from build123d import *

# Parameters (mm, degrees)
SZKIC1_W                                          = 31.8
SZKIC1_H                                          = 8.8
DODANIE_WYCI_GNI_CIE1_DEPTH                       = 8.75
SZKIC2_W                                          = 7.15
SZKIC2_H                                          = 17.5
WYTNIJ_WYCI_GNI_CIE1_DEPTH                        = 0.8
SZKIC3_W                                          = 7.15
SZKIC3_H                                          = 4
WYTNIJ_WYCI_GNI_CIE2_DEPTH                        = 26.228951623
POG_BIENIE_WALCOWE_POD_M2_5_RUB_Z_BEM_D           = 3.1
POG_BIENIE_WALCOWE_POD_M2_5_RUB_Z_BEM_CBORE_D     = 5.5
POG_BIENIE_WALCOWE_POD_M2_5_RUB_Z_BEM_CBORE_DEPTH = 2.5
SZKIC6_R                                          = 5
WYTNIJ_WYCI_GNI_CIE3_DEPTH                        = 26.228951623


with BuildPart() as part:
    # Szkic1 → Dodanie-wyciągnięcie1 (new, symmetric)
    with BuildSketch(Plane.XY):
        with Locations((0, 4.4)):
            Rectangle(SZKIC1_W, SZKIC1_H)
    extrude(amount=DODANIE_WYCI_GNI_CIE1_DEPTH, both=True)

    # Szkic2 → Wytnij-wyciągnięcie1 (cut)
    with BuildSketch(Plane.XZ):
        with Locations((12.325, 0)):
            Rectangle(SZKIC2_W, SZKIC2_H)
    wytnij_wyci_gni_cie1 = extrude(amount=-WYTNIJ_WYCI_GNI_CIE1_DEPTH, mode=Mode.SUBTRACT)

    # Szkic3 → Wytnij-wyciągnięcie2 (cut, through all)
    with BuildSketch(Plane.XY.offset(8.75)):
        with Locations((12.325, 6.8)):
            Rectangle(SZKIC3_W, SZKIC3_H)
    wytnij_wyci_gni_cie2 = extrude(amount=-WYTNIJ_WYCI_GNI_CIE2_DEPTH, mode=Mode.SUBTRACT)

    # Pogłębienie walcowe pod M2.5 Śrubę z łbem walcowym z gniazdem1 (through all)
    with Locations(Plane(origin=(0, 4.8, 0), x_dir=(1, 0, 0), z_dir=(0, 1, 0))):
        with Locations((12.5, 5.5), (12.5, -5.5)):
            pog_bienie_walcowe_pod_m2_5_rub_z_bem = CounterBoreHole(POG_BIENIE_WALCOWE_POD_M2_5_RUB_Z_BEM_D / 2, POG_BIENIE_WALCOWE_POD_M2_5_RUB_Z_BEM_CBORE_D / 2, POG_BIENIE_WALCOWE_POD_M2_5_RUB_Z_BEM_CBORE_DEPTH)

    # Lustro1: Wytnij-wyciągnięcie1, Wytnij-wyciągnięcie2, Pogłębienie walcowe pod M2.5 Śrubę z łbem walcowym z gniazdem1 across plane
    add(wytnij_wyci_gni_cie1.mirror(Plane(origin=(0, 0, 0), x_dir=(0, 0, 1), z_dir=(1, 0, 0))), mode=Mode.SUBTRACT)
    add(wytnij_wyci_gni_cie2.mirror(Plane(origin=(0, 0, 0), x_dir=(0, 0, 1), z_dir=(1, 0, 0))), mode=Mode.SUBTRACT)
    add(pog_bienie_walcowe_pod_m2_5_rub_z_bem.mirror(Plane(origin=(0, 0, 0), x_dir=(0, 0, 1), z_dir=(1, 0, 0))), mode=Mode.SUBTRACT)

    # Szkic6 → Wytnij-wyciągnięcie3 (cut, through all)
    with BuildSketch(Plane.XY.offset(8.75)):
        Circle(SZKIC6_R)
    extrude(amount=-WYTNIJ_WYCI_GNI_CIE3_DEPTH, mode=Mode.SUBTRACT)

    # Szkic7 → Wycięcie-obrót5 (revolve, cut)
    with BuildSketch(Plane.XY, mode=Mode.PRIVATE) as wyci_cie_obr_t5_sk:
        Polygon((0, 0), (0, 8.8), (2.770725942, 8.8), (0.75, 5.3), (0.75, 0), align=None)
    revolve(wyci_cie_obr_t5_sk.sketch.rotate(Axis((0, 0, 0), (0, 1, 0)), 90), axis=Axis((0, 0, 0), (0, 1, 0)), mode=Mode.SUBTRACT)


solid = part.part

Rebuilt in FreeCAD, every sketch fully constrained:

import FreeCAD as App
import Part
import Sketcher
from FreeCAD import Vector
Q = App.Units.Quantity

doc = App.newDocument("Part")
params = doc.addObject("Spreadsheet::Sheet", "Params")
for row, (alias, value) in enumerate([
    ("sketch1_width", "31.8 mm"),
    ("sketch1_height", "8.8 mm"),
    ("pad1_length", "17.5 mm"),
    ("sketch2_height", "17.5 mm"),
    ("sketch2_width", "7.15 mm"),
    ("pocket1_length", "0.8 mm"),
    ("sketch3_height", "4 mm"),
    ("sketch3_width", "7.15 mm"),
    ("sketch4_diameter", "3.1 mm"),
    ("hole_diameter", "3.1 mm"),
    ("hole_cbore_diameter", "5.5 mm"),
    ("hole_cbore_depth", "2.5 mm"),
    ("sketch5_diameter", "10 mm"),
    ("sketch6_height", "8.8 mm"),
    ("sketch6_height2", "5.3 mm"),
    ("sketch6_width", "0.75 mm"),
    ("groove_angle", "360 deg"),
], start=1):
    params.set(f"A{row}", alias)
    params.set(f"B{row}", "=" + value)
    params.setAlias(f"B{row}", alias)

body = doc.addObject("PartDesign::Body", "Body")

sketch1 = body.newObject("Sketcher::SketchObject", "Sketch")
sketch1.AttachmentSupport = (doc.getObject("XY_Plane"), [""])
sketch1.MapMode = "FlatFace"
sketch1.addGeometry([
    Part.LineSegment(Vector(-15.9, 8.8, 0), Vector(-15.9, 0, 0)),
    Part.LineSegment(Vector(-15.9, 0, 0), Vector(15.9, 0, 0)),
    Part.LineSegment(Vector(15.9, 0, 0), Vector(15.9, 8.8, 0)),
    Part.LineSegment(Vector(15.9, 8.8, 0), Vector(-15.9, 8.8, 0)),
], False)
sketch1.addConstraint([
    Sketcher.Constraint("Coincident", 0, 2, 1, 1),
    Sketcher.Constraint("Coincident", 1, 2, 2, 1),
    Sketcher.Constraint("Coincident", 2, 2, 3, 1),
    Sketcher.Constraint("Coincident", 3, 2, 0, 1),
    Sketcher.Constraint("Vertical", 0),
    Sketcher.Constraint("Horizontal", 1),
    Sketcher.Constraint("Vertical", 2),
    Sketcher.Constraint("Horizontal", 3),
    Sketcher.Constraint("Symmetric", 0, 2, 1, 2, -1, 1),
    Sketcher.Constraint("DistanceX", 1, 1, 1, 2, Q("31.8 mm")),
    Sketcher.Constraint("DistanceY", 0, 2, 0, 1, Q("8.8 mm")),
])
sketch1.setExpression("Constraints[9]", "Params.sketch1_width")
sketch1.setExpression("Constraints[10]", "Params.sketch1_height")
pad1 = body.newObject("PartDesign::Pad", "Pad")
pad1.Profile = sketch1
pad1.setExpression("Length", "Params.pad1_length")
pad1.Midplane = True

sketch2 = body.newObject("Sketcher::SketchObject", "Sketch001")
sketch2.AttachmentSupport = (doc.getObject("XZ_Plane"), [""])
sketch2.MapMode = "FlatFace"
sketch2.addGeometry([
    Part.LineSegment(Vector(8.75, 8.75, 0), Vector(8.75, -8.75, 0)),
    Part.LineSegment(Vector(8.75, -8.75, 0), Vector(15.9, -8.75, 0)),
    Part.LineSegment(Vector(15.9, -8.75, 0), Vector(15.9, 8.75, 0)),
    Part.LineSegment(Vector(15.9, 8.75, 0), Vector(8.75, 8.75, 0)),
], False)
sketch2.addConstraint([
    Sketcher.Constraint("Coincident", 0, 2, 1, 1),
    Sketcher.Constraint("Coincident", 1, 2, 2, 1),
    Sketcher.Constraint("Coincident", 2, 2, 3, 1),
    Sketcher.Constraint("Coincident", 3, 2, 0, 1),
    Sketcher.Constraint("Vertical", 0),
    Sketcher.Constraint("Horizontal", 1),
    Sketcher.Constraint("Vertical", 2),
    Sketcher.Constraint("Horizontal", 3),
    Sketcher.Constraint("DistanceY", 0, 2, 0, 1, Q("17.5 mm")),
    Sketcher.Constraint("DistanceX", 1, 1, 1, 2, Q("7.15 mm")),
    Sketcher.Constraint("DistanceX", -1, 1, 1, 2, Q("15.9 mm")),
    Sketcher.Constraint("DistanceY", 0, 2, -1, 1, Q("8.75 mm")),
])
sketch2.setExpression("Constraints[8]", "Params.sketch2_height")
sketch2.setExpression("Constraints[9]", "Params.sketch2_width")
pocket1 = body.newObject("PartDesign::Pocket", "Pocket")
pocket1.Profile = sketch2
pocket1.setExpression("Length", "Params.pocket1_length")

sketch3 = body.newObject("Sketcher::SketchObject", "Sketch002")
sketch3.AttachmentSupport = (doc.getObject("XY_Plane"), [""])
sketch3.MapMode = "FlatFace"
sketch3.AttachmentOffset = App.Placement(Vector(0, 0, 8.75), App.Rotation())
sketch3.addGeometry([
    Part.LineSegment(Vector(8.75, 8.8, 0), Vector(8.75, 4.8, 0)),
    Part.LineSegment(Vector(8.75, 4.8, 0), Vector(15.9, 4.8, 0)),
    Part.LineSegment(Vector(15.9, 4.8, 0), Vector(15.9, 8.8, 0)),
    Part.LineSegment(Vector(15.9, 8.8, 0), Vector(8.75, 8.8, 0)),
], False)
sketch3.addConstraint([
    Sketcher.Constraint("Coincident", 0, 2, 1, 1),
    Sketcher.Constraint("Coincident", 1, 2, 2, 1),
    Sketcher.Constraint("Coincident", 2, 2, 3, 1),
    Sketcher.Constraint("Coincident", 3, 2, 0, 1),
    Sketcher.Constraint("Vertical", 0),
    Sketcher.Constraint("Horizontal", 1),
    Sketcher.Constraint("Vertical", 2),
    Sketcher.Constraint("Horizontal", 3),
    Sketcher.Constraint("DistanceY", 0, 2, 0, 1, Q("4 mm")),
    Sketcher.Constraint("DistanceX", 1, 1, 1, 2, Q("7.15 mm")),
    Sketcher.Constraint("DistanceY", -1, 1, 0, 2, Q("4.8 mm")),
    Sketcher.Constraint("DistanceX", -1, 1, 1, 2, Q("15.9 mm")),
])
sketch3.setExpression("Constraints[8]", "Params.sketch3_height")
sketch3.setExpression("Constraints[9]", "Params.sketch3_width")
pocket2 = body.newObject("PartDesign::Pocket", "Pocket001")
pocket2.Profile = sketch3
pocket2.Type = "ThroughAll"

sketch4 = body.newObject("Sketcher::SketchObject", "Sketch003")
sketch4.AttachmentSupport = (doc.getObject("XZ_Plane"), [""])
sketch4.MapMode = "FlatFace"
sketch4.AttachmentOffset = App.Placement(Vector(0, 0, -4.8), App.Rotation())
sketch4.addGeometry([
    Part.Circle(Vector(12.5, -5.5, 0), Vector(0, 0, 1), 1.55),
    Part.Circle(Vector(12.5, 5.5, 0), Vector(0, 0, 1), 1.55),
], False)
sketch4.addConstraint([
    Sketcher.Constraint("Equal", 0, 1),
    Sketcher.Constraint("Symmetric", 0, 3, 1, 3, -1),
    Sketcher.Constraint("Diameter", 0, Q("3.1 mm")),
    Sketcher.Constraint("DistanceY", 0, 3, 1, 3, Q("11 mm")),
    Sketcher.Constraint("DistanceX", -1, 1, 0, 3, Q("12.5 mm")),
])
sketch4.setExpression("Constraints[2]", "Params.sketch4_diameter")
doc.recompute()
hole = body.newObject("PartDesign::Hole", "Hole")
hole.Profile = sketch4
hole.ThreadType = "None"
hole.setExpression("Diameter", "Params.hole_diameter")
hole.DepthType = "ThroughAll"
hole.HoleCutType = "Counterbore"
hole.setExpression("HoleCutDiameter", "Params.hole_cbore_diameter")
hole.setExpression("HoleCutDepth", "Params.hole_cbore_depth")
hole.Reversed = True
doc.recompute()

mirrored = body.newObject("PartDesign::Mirrored", "Mirrored")
mirrored.Originals = [pocket1, pocket2, hole]
mirrored.MirrorPlane = (doc.getObject("YZ_Plane"), [""])
body.Tip = mirrored

sketch5 = body.newObject("Sketcher::SketchObject", "Sketch004")
sketch5.AttachmentSupport = (doc.getObject("XY_Plane"), [""])
sketch5.MapMode = "FlatFace"
sketch5.AttachmentOffset = App.Placement(Vector(0, 0, 8.75), App.Rotation())
sketch5.addGeometry(Part.Circle(Vector(0, 0, 0), Vector(0, 0, 1), 5), False)
sketch5.addConstraint([
    Sketcher.Constraint("Coincident", 0, 3, -1, 1),
    Sketcher.Constraint("Diameter", 0, Q("10 mm")),
])
sketch5.setExpression("Constraints[1]", "Params.sketch5_diameter")
pocket3 = body.newObject("PartDesign::Pocket", "Pocket002")
pocket3.Profile = sketch5
pocket3.Type = "ThroughAll"

sketch6 = body.newObject("Sketcher::SketchObject", "Sketch005")
sketch6.AttachmentSupport = (doc.getObject("XY_Plane"), [""])
sketch6.MapMode = "FlatFace"
sketch6.addGeometry([
    Part.LineSegment(Vector(0, 8.8, 0), Vector(0, 0, 0)),
    Part.LineSegment(Vector(0, 0, 0), Vector(0.75, 0, 0)),
    Part.LineSegment(Vector(0.75, 0, 0), Vector(0.75, 5.3, 0)),
    Part.LineSegment(Vector(0.75, 5.3, 0), Vector(2.770726, 8.8, 0)),
    Part.LineSegment(Vector(2.770726, 8.8, 0), Vector(0, 8.8, 0)),
], False)
sketch6.addConstraint([
    Sketcher.Constraint("Coincident", 0, 2, 1, 1),
    Sketcher.Constraint("Coincident", 1, 2, 2, 1),
    Sketcher.Constraint("Coincident", 2, 2, 3, 1),
    Sketcher.Constraint("Coincident", 3, 2, 4, 1),
    Sketcher.Constraint("Coincident", 4, 2, 0, 1),
    Sketcher.Constraint("Vertical", 0),
    Sketcher.Constraint("Horizontal", 1),
    Sketcher.Constraint("Vertical", 2),
    Sketcher.Constraint("Horizontal", 4),
    Sketcher.Constraint("Coincident", 0, 2, -1, 1),
    Sketcher.Constraint("Angle", 3, Q("60 deg")),
    Sketcher.Constraint("DistanceY", 0, 2, 0, 1, Q("8.8 mm")),
    Sketcher.Constraint("DistanceY", 2, 1, 2, 2, Q("5.3 mm")),
    Sketcher.Constraint("DistanceX", 1, 1, 1, 2, Q("0.75 mm")),
])
sketch6.setExpression("Constraints[11]", "Params.sketch6_height")
sketch6.setExpression("Constraints[12]", "Params.sketch6_height2")
sketch6.setExpression("Constraints[13]", "Params.sketch6_width")
groove = body.newObject("PartDesign::Groove", "Groove")
groove.Profile = sketch6
groove.ReferenceAxis = (sketch6, ["V_Axis"])
groove.setExpression("Angle", "Params.groove_angle")

doc.recompute()
